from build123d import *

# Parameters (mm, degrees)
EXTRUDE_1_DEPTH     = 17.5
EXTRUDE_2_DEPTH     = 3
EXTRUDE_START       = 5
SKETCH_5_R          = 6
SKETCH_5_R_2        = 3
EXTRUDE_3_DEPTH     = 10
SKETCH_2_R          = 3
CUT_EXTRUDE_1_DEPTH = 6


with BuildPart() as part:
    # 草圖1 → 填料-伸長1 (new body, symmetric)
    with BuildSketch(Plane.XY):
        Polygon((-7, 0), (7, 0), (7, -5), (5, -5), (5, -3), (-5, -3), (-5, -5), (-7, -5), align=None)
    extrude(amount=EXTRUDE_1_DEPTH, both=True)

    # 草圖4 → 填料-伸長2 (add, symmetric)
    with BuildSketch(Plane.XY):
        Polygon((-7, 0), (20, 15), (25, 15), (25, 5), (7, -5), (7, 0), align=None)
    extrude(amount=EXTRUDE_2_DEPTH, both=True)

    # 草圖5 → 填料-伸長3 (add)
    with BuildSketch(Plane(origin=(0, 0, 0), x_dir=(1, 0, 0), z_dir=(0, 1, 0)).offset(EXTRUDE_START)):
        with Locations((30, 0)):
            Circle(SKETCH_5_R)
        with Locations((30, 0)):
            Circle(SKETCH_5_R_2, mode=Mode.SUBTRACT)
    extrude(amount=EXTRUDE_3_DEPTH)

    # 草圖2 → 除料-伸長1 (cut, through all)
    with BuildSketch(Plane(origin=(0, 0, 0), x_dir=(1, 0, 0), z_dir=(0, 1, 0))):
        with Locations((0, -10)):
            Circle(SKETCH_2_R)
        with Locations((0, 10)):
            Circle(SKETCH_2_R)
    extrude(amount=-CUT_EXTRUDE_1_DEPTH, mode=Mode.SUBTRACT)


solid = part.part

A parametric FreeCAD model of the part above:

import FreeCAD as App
import Part
import Sketcher
Q = App.Units.Quantity


def add_polygon(sketch, points):
    """Adds a closed chain of lines whose ends are joined by coincident constraints."""
    first, n = sketch.GeometryCount, len(points)
    for a, b in zip(points, points[1:] + points[:1]):
        sketch.addGeometry(Part.LineSegment(App.Vector(*a, 0), App.Vector(*b, 0)), False)
    for i in range(n):
        sketch.addConstraint(Sketcher.Constraint("Coincident", first + i, 2, first + (i + 1) % n, 1))

doc = App.newDocument("Part")
body = doc.addObject("PartDesign::Body", "Body")

sketch1 = body.newObject("Sketcher::SketchObject", "Sketch")
sketch1.AttachmentSupport = (doc.getObject("XY_Plane"), [""])
sketch1.MapMode = "FlatFace"
add_polygon(sketch1, [(7, 0), (-7, 0), (-7, -5), (-5, -5), (-5, -3), (5, -3), (5, -5), (7, -5)])
sketch1.addConstraint([
    Sketcher.Constraint("Horizontal", 0),
    Sketcher.Constraint("Vertical", 1),
    Sketcher.Constraint("Horizontal", 2),
    Sketcher.Constraint("Vertical", 3),
    Sketcher.Constraint("Horizontal", 4),
    Sketcher.Constraint("Vertical", 5),
    Sketcher.Constraint("Horizontal", 6),
    Sketcher.Constraint("Vertical", 7),
    Sketcher.Constraint("Symmetric", 0, 2, 7, 2, -1, 1),
    Sketcher.Constraint("Symmetric", 2, 2, 5, 2, -2),
    Sketcher.Constraint("Equal", 6, 3),
    Sketcher.Constraint("DistanceX", 0, 2, 0, 1, Q("14 mm")),
    Sketcher.Constraint("DistanceX", 2, 1, 2, 2, Q("2 mm")),
    Sketcher.Constraint("DistanceY", 1, 2, 1, 1, Q("5 mm")),
])
pad1 = body.newObject("PartDesign::Pad", "Pad")
pad1.Profile = sketch1
pad1.Length = 35
pad1.Midplane = True

sketch2 = body.newObject("Sketcher::SketchObject", "Sketch001")
sketch2.AttachmentSupport = (doc.getObject("XY_Plane"), [""])
sketch2.MapMode = "FlatFace"
add_polygon(sketch2, [(20, 15), (-7, 0), (7, 0), (7, -5), (25, 5), (25, 15)])
sketch2.addConstraint([
    Sketcher.Constraint("Horizontal", 1),
    Sketcher.Constraint("Vertical", 2),
    Sketcher.Constraint("Vertical", 4),
    Sketcher.Constraint("Horizontal", 5),
    Sketcher.Constraint("Symmetric", 0, 2, 1, 2, -1, 1),
    Sketcher.Constraint("Parallel", 0, 3),
    Sketcher.Constraint("Equal", 5, 2),
    Sketcher.Constraint("DistanceX", 1, 1, 1, 2, Q("14 mm")),
    Sketcher.Constraint("DistanceX", 5, 2, 5, 1, Q("5 mm")),
    Sketcher.Constraint("DistanceY", 4, 1, 4, 2, Q("10 mm")),
    Sketcher.Constraint("DistanceX", -1, 1, 3, 2, Q("25 mm")),
])
pad2 = body.newObject("PartDesign::Pad", "Pad001")
pad2.Profile = sketch2
pad2.Length = 6
pad2.Midplane = True

sketch3 = body.newObject("Sketcher::SketchObject", "Sketch002")
sketch3.AttachmentSupport = (doc.getObject("XZ_Plane"), [""])
sketch3.MapMode = "FlatFace"
sketch3.AttachmentOffset = App.Placement(App.Vector(0, 0, -5), App.Rotation())
sketch3.addGeometry([
    Part.Circle(App.Vector(30, 0, 0), App.Vector(0, 0, 1), 6),
    Part.Circle(App.Vector(30, 0, 0), App.Vector(0, 0, 1), 3),
], False)
sketch3.addConstraint([
    Sketcher.Constraint("Coincident", 1, 3, 0, 3),
    Sketcher.Constraint("PointOnObject", 0, 3, -1),
    Sketcher.Constraint("Diameter", 0, Q("12 mm")),
    Sketcher.Constraint("Diameter", 1, Q("6 mm")),
    Sketcher.Constraint("DistanceX", -1, 1, 0, 3, Q("30 mm")),
])
pad3 = body.newObject("PartDesign::Pad", "Pad002")
pad3.Profile = sketch3
pad3.Length = 10
pad3.Reversed = True

sketch4 = body.newObject("Sketcher::SketchObject", "Sketch003")
sketch4.AttachmentSupport = (doc.getObject("XZ_Plane"), [""])
sketch4.MapMode = "FlatFace"
sketch4.addGeometry([
    Part.Circle(App.Vector(0, 10, 0), App.Vector(0, 0, 1), 3),
    Part.Circle(App.Vector(0, -10, 0), App.Vector(0, 0, 1), 3),
], False)
sketch4.addConstraint([
    Sketcher.Constraint("Equal", 0, 1),
    Sketcher.Constraint("Symmetric", 0, 3, 1, 3, -1, 1),
    Sketcher.Constraint("PointOnObject", 0, 3, -2),
    Sketcher.Constraint("Diameter", 0, Q("6 mm")),
    Sketcher.Constraint("DistanceY", -1, 1, 0, 3, Q("10 mm")),
])
pocket1 = body.newObject("PartDesign::Pocket", "Pocket")
pocket1.Profile = sketch4
pocket1.Type = "ThroughAll"
pocket1.Reversed = True

doc.recompute()
